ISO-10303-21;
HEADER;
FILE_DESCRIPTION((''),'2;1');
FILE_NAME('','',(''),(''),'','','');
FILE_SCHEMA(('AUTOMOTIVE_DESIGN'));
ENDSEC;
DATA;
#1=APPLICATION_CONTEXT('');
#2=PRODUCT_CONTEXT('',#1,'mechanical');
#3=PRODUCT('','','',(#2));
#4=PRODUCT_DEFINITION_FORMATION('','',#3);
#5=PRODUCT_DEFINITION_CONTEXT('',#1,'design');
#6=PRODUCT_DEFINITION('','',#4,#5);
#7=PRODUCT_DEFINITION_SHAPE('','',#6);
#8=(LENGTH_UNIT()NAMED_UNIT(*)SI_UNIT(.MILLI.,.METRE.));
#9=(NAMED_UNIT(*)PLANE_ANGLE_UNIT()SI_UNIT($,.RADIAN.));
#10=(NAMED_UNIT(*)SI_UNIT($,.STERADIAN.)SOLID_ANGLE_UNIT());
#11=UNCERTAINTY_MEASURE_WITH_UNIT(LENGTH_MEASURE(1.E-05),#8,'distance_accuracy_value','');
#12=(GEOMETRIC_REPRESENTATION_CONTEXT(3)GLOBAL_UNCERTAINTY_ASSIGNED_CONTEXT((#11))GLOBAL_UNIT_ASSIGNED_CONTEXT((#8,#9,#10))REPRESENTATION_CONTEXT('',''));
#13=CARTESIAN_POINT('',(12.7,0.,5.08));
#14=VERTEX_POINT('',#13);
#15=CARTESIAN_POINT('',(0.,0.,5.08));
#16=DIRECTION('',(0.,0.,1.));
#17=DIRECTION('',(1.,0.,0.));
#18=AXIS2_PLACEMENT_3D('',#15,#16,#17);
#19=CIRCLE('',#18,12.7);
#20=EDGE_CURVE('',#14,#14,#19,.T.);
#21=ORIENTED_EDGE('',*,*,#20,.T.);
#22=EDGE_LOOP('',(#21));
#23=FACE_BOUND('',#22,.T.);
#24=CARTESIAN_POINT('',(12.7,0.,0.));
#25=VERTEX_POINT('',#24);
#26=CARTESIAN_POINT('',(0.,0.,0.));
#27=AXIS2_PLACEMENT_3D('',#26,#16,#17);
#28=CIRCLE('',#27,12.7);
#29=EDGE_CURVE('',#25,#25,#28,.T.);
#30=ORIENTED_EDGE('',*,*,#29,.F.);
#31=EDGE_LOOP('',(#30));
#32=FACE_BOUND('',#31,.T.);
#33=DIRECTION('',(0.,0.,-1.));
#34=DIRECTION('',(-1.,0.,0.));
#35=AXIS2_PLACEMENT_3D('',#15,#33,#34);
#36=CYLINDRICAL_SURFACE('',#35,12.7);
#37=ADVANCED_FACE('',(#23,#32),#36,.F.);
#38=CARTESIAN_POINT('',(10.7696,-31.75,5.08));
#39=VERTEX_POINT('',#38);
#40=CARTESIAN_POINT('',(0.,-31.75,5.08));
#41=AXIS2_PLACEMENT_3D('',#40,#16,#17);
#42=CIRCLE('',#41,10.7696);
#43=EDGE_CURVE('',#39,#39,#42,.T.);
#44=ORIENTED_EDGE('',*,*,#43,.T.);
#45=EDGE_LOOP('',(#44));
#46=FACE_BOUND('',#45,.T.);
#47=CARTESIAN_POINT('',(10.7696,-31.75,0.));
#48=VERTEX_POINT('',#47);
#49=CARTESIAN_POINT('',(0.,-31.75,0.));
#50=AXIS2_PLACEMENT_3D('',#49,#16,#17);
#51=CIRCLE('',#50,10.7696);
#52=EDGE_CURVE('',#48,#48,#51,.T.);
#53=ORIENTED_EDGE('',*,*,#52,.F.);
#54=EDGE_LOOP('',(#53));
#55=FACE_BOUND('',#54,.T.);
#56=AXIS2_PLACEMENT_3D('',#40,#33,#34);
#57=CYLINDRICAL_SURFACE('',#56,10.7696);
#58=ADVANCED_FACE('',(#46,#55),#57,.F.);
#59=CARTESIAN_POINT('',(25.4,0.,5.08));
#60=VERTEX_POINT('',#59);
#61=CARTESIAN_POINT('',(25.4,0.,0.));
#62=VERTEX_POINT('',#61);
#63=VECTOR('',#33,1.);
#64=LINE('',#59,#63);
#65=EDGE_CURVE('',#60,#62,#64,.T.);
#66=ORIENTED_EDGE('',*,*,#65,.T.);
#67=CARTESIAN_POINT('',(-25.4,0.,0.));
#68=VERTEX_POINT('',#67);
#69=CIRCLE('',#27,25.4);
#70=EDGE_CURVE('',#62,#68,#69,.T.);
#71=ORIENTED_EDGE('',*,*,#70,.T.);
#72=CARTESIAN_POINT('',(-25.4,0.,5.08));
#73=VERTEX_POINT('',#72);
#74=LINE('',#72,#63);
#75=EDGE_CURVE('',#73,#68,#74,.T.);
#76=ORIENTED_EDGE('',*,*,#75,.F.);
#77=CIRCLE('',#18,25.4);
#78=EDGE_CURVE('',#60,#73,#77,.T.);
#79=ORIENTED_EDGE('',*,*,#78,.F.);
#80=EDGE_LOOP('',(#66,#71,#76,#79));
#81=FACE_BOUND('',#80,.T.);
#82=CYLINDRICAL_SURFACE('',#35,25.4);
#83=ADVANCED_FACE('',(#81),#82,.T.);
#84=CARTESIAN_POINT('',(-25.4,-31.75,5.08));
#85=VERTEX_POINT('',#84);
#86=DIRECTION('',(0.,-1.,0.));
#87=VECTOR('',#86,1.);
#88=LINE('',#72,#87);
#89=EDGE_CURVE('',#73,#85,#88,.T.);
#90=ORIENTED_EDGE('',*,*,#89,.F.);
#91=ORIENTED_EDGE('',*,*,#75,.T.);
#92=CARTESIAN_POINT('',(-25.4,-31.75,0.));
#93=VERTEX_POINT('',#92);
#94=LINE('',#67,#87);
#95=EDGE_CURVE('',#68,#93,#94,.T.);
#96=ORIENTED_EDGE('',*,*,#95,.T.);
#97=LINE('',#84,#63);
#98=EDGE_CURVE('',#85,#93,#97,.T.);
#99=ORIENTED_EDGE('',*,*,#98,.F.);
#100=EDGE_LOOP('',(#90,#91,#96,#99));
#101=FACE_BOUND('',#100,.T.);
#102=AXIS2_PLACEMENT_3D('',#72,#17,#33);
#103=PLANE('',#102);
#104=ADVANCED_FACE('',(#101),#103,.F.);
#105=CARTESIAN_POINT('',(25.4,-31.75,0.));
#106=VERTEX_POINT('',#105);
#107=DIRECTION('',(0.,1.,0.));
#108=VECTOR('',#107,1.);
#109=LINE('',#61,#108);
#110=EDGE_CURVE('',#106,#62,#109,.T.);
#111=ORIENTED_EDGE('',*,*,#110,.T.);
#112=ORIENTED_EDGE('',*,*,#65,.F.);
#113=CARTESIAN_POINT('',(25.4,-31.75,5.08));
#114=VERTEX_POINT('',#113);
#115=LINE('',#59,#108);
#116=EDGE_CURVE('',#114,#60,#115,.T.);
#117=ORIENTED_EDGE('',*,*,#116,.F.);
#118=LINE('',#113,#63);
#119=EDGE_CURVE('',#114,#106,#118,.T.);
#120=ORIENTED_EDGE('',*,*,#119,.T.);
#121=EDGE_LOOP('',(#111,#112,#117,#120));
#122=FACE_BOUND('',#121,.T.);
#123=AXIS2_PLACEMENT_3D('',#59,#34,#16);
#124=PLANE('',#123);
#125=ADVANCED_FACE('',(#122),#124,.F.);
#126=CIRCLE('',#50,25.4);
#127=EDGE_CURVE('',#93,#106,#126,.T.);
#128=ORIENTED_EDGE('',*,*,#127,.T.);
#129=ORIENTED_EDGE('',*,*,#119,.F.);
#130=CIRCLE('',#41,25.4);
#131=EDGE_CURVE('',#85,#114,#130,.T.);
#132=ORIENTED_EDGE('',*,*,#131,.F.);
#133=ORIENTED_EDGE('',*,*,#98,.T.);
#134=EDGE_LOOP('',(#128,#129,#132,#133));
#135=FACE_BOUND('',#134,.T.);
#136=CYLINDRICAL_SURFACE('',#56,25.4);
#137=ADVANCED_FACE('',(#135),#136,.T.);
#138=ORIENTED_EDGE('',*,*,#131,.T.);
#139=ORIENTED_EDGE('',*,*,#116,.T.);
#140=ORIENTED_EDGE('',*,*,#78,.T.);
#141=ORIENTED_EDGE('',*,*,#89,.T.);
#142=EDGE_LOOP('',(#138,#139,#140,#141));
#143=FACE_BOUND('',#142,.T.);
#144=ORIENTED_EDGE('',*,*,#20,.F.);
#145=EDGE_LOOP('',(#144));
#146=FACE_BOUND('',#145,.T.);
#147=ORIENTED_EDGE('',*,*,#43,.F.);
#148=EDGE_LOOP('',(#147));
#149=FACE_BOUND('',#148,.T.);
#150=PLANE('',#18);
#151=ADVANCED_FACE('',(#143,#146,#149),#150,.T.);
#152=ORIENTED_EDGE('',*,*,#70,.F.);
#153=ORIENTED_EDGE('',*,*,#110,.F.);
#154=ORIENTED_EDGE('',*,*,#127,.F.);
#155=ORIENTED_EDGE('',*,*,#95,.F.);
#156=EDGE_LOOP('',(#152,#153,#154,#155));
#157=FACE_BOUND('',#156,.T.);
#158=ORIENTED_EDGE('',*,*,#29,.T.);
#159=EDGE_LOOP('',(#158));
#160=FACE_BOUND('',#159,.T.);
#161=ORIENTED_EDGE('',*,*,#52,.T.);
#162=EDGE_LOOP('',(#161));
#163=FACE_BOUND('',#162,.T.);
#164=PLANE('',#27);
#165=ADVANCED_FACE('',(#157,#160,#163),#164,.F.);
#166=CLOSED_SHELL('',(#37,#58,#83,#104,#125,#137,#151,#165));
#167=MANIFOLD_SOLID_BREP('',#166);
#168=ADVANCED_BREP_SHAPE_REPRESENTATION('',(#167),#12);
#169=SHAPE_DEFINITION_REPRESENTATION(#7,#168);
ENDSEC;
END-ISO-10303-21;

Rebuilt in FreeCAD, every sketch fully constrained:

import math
import FreeCAD as App
import Part
import Sketcher

V = App.Vector
Q = App.Units.Quantity

doc = App.newDocument("Part")
body = doc.addObject("PartDesign::Body", "Body")

# Sketch on XY plane
sketch1 = body.newObject("Sketcher::SketchObject", "Sketch")
sketch1.AttachmentSupport = (doc.getObject("XY_Plane"), [""])
sketch1.MapMode = "FlatFace"
sketch1.addGeometry([
    Part.LineSegment(V(-25.4, 0, 0), V(-25.4, -31.75, 0)),  # 0
    Part.ArcOfCircle(Part.Circle(V(0, -31.75, 0), V(0, 0, 1), 25.4), math.radians(180), math.radians(360)),  # 1
    Part.LineSegment(V(25.4, -31.75, 0), V(25.4, 0, 0)),  # 2
    Part.ArcOfCircle(Part.Circle(V(0, 0, 0), V(0, 0, 1), 25.4), math.radians(0), math.radians(180)),  # 3
    Part.Circle(V(0, -31.75, 0), V(0, 0, 1), 10.7696),  # 4
    Part.Circle(V(0, 0, 0), V(0, 0, 1), 12.7),  # 5
], False)
sketch1.addConstraint([
    Sketcher.Constraint("Tangent", 0, 2, 1, 1),
    Sketcher.Constraint("Tangent", 1, 2, 2, 1),
    Sketcher.Constraint("Tangent", 2, 2, 3, 1),
    Sketcher.Constraint("Tangent", 3, 2, 0, 1),
    Sketcher.Constraint("Vertical", 0),
    Sketcher.Constraint("Vertical", 2),
    Sketcher.Constraint("Coincident", 3, 3, -1, 1),
    Sketcher.Constraint("Coincident", 5, 3, -1, 1),
    Sketcher.Constraint("Coincident", 4, 3, 1, 3),
    Sketcher.Constraint("Diameter", 5, Q("1 in")),
    Sketcher.Constraint("Radius", 1, Q("1 in")),
    Sketcher.Constraint("Diameter", 4, Q("0.848 in")),
    Sketcher.Constraint("DistanceY", 0, 2, 0, 1, Q("1.25 in")),
])
pad1 = body.newObject("PartDesign::Pad", "Pad")
pad1.Profile = sketch1
pad1.Length = Q("0.2 in")

doc.recompute()
